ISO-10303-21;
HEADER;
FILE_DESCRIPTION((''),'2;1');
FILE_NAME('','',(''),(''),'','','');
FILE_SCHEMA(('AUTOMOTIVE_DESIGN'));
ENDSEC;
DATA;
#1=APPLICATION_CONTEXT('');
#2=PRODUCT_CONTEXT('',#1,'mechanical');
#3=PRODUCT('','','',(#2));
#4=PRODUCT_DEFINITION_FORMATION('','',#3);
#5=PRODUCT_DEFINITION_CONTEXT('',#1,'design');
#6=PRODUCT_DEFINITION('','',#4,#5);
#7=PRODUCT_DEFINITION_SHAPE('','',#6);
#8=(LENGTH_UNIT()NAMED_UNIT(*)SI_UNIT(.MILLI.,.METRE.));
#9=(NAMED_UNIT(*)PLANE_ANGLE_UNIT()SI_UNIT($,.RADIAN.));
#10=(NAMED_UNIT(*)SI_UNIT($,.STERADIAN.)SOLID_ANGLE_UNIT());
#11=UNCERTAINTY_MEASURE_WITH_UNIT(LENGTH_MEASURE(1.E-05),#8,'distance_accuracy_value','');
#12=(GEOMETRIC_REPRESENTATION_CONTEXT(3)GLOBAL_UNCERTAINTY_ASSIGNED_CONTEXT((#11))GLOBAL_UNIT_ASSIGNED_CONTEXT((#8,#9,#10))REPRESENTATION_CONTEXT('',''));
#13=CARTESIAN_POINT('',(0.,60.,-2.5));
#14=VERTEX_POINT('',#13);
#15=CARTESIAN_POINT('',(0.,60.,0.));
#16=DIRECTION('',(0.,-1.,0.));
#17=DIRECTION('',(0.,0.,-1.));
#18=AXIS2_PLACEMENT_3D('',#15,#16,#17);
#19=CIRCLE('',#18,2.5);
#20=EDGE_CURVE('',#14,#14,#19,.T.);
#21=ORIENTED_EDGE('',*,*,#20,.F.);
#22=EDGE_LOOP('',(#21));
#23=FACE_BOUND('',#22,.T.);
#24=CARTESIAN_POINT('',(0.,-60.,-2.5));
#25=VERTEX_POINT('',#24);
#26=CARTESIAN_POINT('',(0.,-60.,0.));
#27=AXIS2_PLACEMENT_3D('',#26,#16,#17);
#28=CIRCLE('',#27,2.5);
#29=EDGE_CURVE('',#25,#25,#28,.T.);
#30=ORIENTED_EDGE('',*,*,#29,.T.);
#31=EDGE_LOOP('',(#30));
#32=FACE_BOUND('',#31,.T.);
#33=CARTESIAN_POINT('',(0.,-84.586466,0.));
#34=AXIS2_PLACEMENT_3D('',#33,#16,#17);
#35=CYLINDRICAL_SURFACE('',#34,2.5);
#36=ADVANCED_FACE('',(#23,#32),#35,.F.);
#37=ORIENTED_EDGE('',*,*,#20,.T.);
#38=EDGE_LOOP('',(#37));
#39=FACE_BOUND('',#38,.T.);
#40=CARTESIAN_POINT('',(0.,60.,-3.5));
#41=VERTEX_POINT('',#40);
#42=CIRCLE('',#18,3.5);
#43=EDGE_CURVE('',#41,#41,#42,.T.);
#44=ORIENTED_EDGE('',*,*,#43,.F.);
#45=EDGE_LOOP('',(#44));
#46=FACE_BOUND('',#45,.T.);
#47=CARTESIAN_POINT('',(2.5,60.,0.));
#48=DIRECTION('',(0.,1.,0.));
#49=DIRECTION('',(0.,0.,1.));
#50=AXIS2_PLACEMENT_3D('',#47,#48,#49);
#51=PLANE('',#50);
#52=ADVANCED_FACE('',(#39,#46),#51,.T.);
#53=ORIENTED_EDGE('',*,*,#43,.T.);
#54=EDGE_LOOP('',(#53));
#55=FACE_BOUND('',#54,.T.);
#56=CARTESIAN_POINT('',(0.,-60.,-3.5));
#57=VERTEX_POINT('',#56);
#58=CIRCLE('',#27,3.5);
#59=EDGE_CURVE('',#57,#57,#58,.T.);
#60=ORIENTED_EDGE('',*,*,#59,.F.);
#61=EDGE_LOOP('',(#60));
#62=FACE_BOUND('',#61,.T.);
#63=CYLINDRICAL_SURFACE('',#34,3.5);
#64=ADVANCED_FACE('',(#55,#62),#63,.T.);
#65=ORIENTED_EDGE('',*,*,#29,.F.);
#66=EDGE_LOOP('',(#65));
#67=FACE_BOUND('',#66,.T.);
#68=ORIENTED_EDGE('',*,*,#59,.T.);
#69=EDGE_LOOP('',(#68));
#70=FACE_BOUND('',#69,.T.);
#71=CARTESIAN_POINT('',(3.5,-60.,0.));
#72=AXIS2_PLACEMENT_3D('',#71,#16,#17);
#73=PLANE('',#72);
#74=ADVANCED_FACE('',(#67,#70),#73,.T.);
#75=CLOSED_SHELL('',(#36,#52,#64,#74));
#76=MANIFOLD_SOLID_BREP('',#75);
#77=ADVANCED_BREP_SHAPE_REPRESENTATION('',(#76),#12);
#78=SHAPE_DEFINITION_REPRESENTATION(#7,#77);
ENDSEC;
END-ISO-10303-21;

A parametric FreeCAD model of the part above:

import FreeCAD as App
import Part
import Sketcher
from FreeCAD import Vector


def add_polygon(sketch, points):
    """Adds a closed chain of lines whose ends are joined by coincident constraints."""
    first, n = sketch.GeometryCount, len(points)
    for a, b in zip(points, points[1:] + points[:1]):
        sketch.addGeometry(Part.LineSegment(App.Vector(*a, 0), App.Vector(*b, 0)), False)
    for i in range(n):
        sketch.addConstraint(Sketcher.Constraint("Coincident", first + i, 2, first + (i + 1) % n, 1))

doc = App.newDocument("Part")
body = doc.addObject("PartDesign::Body", "Body")

sketch1 = body.newObject("Sketcher::SketchObject", "Sketch")
sketch1.AttachmentSupport = (doc.getObject("XY_Plane"), [""])
sketch1.MapMode = "FlatFace"
add_polygon(sketch1, [(2.5, 60), (2.5, -60), (3.5, -60), (3.5, 60)])
sketch1.addConstraint([
    Sketcher.Constraint("Vertical", 0),
    Sketcher.Constraint("Horizontal", 1),
    Sketcher.Constraint("Vertical", 2),
    Sketcher.Constraint("Horizontal", 3),
    Sketcher.Constraint("DistanceX", 1, 1, 1, 2, 1.0),
    Sketcher.Constraint("DistanceY", 0, 2, 0, 1, 120.0),
    Sketcher.Constraint("DistanceY", 0, 2, -1, 1, 60.0),
    Sketcher.Constraint("DistanceX", -1, 1, 0, 2, 2.5),
])
revolution = body.newObject("PartDesign::Revolution", "Revolution")
revolution.Profile = sketch1
revolution.ReferenceAxis = (sketch1, ["V_Axis"])
revolution.Angle = 360

doc.recompute()
